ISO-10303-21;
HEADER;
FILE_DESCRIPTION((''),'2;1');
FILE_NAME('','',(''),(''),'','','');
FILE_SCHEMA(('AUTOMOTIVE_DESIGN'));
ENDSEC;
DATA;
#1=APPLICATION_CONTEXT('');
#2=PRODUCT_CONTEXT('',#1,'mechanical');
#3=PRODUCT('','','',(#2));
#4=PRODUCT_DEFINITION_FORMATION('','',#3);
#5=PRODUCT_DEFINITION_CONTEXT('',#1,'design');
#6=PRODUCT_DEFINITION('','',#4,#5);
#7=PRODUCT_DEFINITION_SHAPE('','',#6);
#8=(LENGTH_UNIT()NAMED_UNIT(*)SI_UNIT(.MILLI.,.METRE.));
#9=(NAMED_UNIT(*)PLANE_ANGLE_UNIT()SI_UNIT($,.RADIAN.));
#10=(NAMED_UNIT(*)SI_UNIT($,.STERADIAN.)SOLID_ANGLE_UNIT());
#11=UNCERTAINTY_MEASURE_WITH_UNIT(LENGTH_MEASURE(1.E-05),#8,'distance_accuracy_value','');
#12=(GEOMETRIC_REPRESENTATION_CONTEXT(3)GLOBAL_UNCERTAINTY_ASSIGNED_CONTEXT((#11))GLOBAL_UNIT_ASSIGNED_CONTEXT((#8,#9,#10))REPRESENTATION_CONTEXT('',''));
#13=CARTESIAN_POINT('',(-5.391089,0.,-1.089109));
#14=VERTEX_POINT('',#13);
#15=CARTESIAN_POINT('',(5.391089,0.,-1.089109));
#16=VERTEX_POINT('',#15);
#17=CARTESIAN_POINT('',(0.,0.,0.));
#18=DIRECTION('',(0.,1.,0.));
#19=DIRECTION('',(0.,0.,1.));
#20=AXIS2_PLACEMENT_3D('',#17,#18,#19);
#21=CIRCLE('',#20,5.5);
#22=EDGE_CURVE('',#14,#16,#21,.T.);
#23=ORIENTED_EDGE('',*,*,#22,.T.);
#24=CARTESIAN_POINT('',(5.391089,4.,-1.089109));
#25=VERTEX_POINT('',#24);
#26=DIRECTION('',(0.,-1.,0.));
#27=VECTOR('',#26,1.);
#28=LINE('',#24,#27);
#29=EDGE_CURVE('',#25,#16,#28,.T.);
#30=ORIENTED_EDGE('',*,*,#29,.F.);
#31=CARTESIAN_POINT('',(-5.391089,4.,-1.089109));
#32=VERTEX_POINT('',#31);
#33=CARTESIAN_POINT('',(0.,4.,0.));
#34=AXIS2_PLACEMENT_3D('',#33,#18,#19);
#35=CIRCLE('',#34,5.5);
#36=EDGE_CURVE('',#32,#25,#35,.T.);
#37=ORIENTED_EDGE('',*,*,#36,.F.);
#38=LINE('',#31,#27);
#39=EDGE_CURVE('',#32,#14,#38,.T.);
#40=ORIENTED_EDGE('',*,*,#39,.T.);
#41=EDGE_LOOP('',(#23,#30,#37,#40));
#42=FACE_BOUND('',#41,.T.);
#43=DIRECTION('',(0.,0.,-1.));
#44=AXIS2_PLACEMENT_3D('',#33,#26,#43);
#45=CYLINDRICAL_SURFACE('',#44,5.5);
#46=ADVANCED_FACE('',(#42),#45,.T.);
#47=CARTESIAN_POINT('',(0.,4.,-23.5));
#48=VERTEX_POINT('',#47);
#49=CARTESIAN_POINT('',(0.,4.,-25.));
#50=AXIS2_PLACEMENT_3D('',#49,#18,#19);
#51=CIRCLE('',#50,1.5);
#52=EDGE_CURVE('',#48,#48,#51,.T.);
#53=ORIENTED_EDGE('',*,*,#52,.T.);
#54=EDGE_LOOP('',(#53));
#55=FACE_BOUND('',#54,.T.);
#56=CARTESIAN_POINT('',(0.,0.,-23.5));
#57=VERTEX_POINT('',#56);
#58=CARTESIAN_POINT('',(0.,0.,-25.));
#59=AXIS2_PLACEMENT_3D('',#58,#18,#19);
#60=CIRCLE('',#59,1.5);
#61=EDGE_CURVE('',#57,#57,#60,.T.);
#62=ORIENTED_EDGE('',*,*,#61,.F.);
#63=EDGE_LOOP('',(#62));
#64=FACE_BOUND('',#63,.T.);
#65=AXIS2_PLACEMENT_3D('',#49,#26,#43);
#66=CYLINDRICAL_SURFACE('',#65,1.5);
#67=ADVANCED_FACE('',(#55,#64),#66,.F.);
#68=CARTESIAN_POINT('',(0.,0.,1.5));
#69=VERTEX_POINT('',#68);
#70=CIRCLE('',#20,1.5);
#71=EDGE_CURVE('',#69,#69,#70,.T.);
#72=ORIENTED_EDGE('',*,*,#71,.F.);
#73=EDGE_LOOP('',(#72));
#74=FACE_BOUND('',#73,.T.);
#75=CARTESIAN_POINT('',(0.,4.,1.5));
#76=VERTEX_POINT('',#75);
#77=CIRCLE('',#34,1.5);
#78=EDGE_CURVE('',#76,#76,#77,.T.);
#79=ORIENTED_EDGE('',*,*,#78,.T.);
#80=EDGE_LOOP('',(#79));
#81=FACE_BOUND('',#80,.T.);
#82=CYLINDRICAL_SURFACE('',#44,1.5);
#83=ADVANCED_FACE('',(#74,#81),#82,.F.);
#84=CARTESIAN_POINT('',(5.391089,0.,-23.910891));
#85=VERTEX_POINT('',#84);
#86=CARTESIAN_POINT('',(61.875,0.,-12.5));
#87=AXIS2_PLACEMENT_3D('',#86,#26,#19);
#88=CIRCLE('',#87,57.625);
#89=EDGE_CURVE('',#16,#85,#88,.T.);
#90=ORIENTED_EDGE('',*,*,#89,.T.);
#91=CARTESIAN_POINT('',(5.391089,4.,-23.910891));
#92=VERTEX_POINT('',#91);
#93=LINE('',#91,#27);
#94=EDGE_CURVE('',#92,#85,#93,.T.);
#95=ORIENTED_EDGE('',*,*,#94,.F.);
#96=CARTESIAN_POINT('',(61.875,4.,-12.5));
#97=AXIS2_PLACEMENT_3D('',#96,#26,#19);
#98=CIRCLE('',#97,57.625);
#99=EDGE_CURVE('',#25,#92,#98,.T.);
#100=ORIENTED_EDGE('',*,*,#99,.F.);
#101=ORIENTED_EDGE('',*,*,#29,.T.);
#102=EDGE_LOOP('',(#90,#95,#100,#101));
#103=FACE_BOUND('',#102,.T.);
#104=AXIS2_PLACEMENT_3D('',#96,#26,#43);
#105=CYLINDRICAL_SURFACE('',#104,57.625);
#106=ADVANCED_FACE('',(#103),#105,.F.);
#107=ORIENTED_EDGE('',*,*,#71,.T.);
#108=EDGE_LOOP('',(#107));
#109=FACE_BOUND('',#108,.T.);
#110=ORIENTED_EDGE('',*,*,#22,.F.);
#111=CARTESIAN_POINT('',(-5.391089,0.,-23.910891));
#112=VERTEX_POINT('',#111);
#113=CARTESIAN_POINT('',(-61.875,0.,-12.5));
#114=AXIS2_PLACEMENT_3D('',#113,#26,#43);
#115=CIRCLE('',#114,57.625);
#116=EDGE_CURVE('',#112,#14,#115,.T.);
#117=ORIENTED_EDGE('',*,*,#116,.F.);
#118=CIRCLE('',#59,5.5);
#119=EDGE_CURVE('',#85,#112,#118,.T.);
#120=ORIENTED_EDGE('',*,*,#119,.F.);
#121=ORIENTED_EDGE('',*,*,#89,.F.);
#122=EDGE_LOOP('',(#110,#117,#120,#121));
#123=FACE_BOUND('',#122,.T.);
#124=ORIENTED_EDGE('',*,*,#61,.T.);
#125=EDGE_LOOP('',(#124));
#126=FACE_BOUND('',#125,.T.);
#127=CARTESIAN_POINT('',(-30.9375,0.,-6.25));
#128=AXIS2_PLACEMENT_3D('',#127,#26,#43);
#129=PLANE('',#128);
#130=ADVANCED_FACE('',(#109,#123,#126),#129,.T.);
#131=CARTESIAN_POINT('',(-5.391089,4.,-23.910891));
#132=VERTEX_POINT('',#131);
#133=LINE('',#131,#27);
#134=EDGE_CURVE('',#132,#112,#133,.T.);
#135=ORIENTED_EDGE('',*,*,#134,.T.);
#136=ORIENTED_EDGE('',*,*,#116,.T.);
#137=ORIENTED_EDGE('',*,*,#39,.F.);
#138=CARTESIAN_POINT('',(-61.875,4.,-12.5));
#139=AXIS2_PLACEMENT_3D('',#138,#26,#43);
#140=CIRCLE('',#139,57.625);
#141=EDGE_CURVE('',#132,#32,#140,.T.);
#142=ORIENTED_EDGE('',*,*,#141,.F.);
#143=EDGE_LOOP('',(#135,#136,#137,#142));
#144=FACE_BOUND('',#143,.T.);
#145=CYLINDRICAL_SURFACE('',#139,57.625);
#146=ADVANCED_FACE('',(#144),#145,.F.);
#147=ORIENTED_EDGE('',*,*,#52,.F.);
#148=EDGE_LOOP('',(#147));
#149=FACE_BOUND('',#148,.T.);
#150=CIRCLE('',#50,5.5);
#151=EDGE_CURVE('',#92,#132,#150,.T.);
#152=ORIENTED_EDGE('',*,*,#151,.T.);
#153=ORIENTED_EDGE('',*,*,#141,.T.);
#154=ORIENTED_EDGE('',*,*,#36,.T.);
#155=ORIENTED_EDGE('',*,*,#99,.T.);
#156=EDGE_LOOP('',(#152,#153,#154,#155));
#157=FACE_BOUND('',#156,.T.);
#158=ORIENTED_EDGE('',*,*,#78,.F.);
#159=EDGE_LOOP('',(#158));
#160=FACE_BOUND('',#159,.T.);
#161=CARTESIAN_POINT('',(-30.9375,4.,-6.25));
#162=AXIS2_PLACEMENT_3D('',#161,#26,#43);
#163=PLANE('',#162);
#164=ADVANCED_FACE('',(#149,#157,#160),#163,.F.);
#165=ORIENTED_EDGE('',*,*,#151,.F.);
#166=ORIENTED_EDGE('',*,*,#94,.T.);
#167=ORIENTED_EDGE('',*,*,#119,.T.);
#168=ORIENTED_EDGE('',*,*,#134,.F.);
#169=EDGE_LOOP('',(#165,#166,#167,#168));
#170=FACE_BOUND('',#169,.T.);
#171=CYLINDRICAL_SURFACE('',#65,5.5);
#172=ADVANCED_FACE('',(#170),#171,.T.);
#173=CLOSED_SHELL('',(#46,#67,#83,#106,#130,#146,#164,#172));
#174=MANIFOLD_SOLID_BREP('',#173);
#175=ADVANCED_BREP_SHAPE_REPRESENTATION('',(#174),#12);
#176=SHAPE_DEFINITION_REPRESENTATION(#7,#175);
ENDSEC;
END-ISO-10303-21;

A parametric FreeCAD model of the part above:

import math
import FreeCAD as App
import Part
import Sketcher
Q = App.Units.Quantity

doc = App.newDocument("Part")
body = doc.addObject("PartDesign::Body", "Body")

# Sketch on XZ plane
sketch1 = doc.addObject("Sketcher::SketchObject", "Sketch")
body.addObject(sketch1)
sketch1.AttachmentSupport = (doc.XZ_Plane, [""])
sketch1.MapMode = "FlatFace"
sketch1.addGeometry(Part.ArcOfCircle(Part.Circle(App.Vector(0, 0, 0), App.Vector(0, 0, 1), 5.5), math.radians(-11), math.radians(191)), False)
sketch1.addGeometry(Part.ArcOfCircle(Part.Circle(App.Vector(61.9, -12.5, 0), App.Vector(0, 0, 1), 57.6), math.radians(169), math.radians(191)), False)
sketch1.addGeometry(Part.ArcOfCircle(Part.Circle(App.Vector(0, -25, 0), App.Vector(0, 0, 1), 5.5), math.radians(169), math.radians(371)), False)
sketch1.addGeometry(Part.ArcOfCircle(Part.Circle(App.Vector(-61.9, -12.5, 0), App.Vector(0, 0, 1), 57.6), math.radians(-11), math.radians(11)), False)
sketch1.addGeometry(Part.Circle(App.Vector(0, 0, 0), App.Vector(0, 0, 1), 1.5), False)
sketch1.addGeometry(Part.Circle(App.Vector(0, -25, 0), App.Vector(0, 0, 1), 1.5), False)
sketch1.addConstraint(Sketcher.Constraint("Tangent", 0, 1, 1, 1))
sketch1.addConstraint(Sketcher.Constraint("Tangent", 1, 2, 2, 2))
sketch1.addConstraint(Sketcher.Constraint("Tangent", 2, 1, 3, 1))
sketch1.addConstraint(Sketcher.Constraint("Tangent", 3, 2, 0, 2))
sketch1.addConstraint(Sketcher.Constraint("Coincident", 0, 3, -1, 1))
sketch1.addConstraint(Sketcher.Constraint("Coincident", 4, 3, -1, 1))
sketch1.addConstraint(Sketcher.Constraint("Coincident", 5, 3, 2, 3))
sketch1.addConstraint(Sketcher.Constraint("Equal", 0, 2))
sketch1.addConstraint(Sketcher.Constraint("Equal", 1, 3))
sketch1.addConstraint(Sketcher.Constraint("Equal", 4, 5))
sketch1.addConstraint(Sketcher.Constraint("PointOnObject", 2, 3, -2))
sketch1.addConstraint(Sketcher.Constraint("Diameter", 4, Q("3 mm")))
sketch1.addConstraint(Sketcher.Constraint("Radius", 0, Q("5.5 mm")))
sketch1.addConstraint(Sketcher.Constraint("DistanceY", 2, 3, -1, 1, Q("25 mm")))
sketch1.addConstraint(Sketcher.Constraint("Radius", 1, Q("57.625 mm")))
pad1 = doc.addObject("PartDesign::Pad", "Pad")
body.addObject(pad1)
pad1.Profile = sketch1
pad1.Length = 4
pad1.Reversed = True

doc.recompute()
